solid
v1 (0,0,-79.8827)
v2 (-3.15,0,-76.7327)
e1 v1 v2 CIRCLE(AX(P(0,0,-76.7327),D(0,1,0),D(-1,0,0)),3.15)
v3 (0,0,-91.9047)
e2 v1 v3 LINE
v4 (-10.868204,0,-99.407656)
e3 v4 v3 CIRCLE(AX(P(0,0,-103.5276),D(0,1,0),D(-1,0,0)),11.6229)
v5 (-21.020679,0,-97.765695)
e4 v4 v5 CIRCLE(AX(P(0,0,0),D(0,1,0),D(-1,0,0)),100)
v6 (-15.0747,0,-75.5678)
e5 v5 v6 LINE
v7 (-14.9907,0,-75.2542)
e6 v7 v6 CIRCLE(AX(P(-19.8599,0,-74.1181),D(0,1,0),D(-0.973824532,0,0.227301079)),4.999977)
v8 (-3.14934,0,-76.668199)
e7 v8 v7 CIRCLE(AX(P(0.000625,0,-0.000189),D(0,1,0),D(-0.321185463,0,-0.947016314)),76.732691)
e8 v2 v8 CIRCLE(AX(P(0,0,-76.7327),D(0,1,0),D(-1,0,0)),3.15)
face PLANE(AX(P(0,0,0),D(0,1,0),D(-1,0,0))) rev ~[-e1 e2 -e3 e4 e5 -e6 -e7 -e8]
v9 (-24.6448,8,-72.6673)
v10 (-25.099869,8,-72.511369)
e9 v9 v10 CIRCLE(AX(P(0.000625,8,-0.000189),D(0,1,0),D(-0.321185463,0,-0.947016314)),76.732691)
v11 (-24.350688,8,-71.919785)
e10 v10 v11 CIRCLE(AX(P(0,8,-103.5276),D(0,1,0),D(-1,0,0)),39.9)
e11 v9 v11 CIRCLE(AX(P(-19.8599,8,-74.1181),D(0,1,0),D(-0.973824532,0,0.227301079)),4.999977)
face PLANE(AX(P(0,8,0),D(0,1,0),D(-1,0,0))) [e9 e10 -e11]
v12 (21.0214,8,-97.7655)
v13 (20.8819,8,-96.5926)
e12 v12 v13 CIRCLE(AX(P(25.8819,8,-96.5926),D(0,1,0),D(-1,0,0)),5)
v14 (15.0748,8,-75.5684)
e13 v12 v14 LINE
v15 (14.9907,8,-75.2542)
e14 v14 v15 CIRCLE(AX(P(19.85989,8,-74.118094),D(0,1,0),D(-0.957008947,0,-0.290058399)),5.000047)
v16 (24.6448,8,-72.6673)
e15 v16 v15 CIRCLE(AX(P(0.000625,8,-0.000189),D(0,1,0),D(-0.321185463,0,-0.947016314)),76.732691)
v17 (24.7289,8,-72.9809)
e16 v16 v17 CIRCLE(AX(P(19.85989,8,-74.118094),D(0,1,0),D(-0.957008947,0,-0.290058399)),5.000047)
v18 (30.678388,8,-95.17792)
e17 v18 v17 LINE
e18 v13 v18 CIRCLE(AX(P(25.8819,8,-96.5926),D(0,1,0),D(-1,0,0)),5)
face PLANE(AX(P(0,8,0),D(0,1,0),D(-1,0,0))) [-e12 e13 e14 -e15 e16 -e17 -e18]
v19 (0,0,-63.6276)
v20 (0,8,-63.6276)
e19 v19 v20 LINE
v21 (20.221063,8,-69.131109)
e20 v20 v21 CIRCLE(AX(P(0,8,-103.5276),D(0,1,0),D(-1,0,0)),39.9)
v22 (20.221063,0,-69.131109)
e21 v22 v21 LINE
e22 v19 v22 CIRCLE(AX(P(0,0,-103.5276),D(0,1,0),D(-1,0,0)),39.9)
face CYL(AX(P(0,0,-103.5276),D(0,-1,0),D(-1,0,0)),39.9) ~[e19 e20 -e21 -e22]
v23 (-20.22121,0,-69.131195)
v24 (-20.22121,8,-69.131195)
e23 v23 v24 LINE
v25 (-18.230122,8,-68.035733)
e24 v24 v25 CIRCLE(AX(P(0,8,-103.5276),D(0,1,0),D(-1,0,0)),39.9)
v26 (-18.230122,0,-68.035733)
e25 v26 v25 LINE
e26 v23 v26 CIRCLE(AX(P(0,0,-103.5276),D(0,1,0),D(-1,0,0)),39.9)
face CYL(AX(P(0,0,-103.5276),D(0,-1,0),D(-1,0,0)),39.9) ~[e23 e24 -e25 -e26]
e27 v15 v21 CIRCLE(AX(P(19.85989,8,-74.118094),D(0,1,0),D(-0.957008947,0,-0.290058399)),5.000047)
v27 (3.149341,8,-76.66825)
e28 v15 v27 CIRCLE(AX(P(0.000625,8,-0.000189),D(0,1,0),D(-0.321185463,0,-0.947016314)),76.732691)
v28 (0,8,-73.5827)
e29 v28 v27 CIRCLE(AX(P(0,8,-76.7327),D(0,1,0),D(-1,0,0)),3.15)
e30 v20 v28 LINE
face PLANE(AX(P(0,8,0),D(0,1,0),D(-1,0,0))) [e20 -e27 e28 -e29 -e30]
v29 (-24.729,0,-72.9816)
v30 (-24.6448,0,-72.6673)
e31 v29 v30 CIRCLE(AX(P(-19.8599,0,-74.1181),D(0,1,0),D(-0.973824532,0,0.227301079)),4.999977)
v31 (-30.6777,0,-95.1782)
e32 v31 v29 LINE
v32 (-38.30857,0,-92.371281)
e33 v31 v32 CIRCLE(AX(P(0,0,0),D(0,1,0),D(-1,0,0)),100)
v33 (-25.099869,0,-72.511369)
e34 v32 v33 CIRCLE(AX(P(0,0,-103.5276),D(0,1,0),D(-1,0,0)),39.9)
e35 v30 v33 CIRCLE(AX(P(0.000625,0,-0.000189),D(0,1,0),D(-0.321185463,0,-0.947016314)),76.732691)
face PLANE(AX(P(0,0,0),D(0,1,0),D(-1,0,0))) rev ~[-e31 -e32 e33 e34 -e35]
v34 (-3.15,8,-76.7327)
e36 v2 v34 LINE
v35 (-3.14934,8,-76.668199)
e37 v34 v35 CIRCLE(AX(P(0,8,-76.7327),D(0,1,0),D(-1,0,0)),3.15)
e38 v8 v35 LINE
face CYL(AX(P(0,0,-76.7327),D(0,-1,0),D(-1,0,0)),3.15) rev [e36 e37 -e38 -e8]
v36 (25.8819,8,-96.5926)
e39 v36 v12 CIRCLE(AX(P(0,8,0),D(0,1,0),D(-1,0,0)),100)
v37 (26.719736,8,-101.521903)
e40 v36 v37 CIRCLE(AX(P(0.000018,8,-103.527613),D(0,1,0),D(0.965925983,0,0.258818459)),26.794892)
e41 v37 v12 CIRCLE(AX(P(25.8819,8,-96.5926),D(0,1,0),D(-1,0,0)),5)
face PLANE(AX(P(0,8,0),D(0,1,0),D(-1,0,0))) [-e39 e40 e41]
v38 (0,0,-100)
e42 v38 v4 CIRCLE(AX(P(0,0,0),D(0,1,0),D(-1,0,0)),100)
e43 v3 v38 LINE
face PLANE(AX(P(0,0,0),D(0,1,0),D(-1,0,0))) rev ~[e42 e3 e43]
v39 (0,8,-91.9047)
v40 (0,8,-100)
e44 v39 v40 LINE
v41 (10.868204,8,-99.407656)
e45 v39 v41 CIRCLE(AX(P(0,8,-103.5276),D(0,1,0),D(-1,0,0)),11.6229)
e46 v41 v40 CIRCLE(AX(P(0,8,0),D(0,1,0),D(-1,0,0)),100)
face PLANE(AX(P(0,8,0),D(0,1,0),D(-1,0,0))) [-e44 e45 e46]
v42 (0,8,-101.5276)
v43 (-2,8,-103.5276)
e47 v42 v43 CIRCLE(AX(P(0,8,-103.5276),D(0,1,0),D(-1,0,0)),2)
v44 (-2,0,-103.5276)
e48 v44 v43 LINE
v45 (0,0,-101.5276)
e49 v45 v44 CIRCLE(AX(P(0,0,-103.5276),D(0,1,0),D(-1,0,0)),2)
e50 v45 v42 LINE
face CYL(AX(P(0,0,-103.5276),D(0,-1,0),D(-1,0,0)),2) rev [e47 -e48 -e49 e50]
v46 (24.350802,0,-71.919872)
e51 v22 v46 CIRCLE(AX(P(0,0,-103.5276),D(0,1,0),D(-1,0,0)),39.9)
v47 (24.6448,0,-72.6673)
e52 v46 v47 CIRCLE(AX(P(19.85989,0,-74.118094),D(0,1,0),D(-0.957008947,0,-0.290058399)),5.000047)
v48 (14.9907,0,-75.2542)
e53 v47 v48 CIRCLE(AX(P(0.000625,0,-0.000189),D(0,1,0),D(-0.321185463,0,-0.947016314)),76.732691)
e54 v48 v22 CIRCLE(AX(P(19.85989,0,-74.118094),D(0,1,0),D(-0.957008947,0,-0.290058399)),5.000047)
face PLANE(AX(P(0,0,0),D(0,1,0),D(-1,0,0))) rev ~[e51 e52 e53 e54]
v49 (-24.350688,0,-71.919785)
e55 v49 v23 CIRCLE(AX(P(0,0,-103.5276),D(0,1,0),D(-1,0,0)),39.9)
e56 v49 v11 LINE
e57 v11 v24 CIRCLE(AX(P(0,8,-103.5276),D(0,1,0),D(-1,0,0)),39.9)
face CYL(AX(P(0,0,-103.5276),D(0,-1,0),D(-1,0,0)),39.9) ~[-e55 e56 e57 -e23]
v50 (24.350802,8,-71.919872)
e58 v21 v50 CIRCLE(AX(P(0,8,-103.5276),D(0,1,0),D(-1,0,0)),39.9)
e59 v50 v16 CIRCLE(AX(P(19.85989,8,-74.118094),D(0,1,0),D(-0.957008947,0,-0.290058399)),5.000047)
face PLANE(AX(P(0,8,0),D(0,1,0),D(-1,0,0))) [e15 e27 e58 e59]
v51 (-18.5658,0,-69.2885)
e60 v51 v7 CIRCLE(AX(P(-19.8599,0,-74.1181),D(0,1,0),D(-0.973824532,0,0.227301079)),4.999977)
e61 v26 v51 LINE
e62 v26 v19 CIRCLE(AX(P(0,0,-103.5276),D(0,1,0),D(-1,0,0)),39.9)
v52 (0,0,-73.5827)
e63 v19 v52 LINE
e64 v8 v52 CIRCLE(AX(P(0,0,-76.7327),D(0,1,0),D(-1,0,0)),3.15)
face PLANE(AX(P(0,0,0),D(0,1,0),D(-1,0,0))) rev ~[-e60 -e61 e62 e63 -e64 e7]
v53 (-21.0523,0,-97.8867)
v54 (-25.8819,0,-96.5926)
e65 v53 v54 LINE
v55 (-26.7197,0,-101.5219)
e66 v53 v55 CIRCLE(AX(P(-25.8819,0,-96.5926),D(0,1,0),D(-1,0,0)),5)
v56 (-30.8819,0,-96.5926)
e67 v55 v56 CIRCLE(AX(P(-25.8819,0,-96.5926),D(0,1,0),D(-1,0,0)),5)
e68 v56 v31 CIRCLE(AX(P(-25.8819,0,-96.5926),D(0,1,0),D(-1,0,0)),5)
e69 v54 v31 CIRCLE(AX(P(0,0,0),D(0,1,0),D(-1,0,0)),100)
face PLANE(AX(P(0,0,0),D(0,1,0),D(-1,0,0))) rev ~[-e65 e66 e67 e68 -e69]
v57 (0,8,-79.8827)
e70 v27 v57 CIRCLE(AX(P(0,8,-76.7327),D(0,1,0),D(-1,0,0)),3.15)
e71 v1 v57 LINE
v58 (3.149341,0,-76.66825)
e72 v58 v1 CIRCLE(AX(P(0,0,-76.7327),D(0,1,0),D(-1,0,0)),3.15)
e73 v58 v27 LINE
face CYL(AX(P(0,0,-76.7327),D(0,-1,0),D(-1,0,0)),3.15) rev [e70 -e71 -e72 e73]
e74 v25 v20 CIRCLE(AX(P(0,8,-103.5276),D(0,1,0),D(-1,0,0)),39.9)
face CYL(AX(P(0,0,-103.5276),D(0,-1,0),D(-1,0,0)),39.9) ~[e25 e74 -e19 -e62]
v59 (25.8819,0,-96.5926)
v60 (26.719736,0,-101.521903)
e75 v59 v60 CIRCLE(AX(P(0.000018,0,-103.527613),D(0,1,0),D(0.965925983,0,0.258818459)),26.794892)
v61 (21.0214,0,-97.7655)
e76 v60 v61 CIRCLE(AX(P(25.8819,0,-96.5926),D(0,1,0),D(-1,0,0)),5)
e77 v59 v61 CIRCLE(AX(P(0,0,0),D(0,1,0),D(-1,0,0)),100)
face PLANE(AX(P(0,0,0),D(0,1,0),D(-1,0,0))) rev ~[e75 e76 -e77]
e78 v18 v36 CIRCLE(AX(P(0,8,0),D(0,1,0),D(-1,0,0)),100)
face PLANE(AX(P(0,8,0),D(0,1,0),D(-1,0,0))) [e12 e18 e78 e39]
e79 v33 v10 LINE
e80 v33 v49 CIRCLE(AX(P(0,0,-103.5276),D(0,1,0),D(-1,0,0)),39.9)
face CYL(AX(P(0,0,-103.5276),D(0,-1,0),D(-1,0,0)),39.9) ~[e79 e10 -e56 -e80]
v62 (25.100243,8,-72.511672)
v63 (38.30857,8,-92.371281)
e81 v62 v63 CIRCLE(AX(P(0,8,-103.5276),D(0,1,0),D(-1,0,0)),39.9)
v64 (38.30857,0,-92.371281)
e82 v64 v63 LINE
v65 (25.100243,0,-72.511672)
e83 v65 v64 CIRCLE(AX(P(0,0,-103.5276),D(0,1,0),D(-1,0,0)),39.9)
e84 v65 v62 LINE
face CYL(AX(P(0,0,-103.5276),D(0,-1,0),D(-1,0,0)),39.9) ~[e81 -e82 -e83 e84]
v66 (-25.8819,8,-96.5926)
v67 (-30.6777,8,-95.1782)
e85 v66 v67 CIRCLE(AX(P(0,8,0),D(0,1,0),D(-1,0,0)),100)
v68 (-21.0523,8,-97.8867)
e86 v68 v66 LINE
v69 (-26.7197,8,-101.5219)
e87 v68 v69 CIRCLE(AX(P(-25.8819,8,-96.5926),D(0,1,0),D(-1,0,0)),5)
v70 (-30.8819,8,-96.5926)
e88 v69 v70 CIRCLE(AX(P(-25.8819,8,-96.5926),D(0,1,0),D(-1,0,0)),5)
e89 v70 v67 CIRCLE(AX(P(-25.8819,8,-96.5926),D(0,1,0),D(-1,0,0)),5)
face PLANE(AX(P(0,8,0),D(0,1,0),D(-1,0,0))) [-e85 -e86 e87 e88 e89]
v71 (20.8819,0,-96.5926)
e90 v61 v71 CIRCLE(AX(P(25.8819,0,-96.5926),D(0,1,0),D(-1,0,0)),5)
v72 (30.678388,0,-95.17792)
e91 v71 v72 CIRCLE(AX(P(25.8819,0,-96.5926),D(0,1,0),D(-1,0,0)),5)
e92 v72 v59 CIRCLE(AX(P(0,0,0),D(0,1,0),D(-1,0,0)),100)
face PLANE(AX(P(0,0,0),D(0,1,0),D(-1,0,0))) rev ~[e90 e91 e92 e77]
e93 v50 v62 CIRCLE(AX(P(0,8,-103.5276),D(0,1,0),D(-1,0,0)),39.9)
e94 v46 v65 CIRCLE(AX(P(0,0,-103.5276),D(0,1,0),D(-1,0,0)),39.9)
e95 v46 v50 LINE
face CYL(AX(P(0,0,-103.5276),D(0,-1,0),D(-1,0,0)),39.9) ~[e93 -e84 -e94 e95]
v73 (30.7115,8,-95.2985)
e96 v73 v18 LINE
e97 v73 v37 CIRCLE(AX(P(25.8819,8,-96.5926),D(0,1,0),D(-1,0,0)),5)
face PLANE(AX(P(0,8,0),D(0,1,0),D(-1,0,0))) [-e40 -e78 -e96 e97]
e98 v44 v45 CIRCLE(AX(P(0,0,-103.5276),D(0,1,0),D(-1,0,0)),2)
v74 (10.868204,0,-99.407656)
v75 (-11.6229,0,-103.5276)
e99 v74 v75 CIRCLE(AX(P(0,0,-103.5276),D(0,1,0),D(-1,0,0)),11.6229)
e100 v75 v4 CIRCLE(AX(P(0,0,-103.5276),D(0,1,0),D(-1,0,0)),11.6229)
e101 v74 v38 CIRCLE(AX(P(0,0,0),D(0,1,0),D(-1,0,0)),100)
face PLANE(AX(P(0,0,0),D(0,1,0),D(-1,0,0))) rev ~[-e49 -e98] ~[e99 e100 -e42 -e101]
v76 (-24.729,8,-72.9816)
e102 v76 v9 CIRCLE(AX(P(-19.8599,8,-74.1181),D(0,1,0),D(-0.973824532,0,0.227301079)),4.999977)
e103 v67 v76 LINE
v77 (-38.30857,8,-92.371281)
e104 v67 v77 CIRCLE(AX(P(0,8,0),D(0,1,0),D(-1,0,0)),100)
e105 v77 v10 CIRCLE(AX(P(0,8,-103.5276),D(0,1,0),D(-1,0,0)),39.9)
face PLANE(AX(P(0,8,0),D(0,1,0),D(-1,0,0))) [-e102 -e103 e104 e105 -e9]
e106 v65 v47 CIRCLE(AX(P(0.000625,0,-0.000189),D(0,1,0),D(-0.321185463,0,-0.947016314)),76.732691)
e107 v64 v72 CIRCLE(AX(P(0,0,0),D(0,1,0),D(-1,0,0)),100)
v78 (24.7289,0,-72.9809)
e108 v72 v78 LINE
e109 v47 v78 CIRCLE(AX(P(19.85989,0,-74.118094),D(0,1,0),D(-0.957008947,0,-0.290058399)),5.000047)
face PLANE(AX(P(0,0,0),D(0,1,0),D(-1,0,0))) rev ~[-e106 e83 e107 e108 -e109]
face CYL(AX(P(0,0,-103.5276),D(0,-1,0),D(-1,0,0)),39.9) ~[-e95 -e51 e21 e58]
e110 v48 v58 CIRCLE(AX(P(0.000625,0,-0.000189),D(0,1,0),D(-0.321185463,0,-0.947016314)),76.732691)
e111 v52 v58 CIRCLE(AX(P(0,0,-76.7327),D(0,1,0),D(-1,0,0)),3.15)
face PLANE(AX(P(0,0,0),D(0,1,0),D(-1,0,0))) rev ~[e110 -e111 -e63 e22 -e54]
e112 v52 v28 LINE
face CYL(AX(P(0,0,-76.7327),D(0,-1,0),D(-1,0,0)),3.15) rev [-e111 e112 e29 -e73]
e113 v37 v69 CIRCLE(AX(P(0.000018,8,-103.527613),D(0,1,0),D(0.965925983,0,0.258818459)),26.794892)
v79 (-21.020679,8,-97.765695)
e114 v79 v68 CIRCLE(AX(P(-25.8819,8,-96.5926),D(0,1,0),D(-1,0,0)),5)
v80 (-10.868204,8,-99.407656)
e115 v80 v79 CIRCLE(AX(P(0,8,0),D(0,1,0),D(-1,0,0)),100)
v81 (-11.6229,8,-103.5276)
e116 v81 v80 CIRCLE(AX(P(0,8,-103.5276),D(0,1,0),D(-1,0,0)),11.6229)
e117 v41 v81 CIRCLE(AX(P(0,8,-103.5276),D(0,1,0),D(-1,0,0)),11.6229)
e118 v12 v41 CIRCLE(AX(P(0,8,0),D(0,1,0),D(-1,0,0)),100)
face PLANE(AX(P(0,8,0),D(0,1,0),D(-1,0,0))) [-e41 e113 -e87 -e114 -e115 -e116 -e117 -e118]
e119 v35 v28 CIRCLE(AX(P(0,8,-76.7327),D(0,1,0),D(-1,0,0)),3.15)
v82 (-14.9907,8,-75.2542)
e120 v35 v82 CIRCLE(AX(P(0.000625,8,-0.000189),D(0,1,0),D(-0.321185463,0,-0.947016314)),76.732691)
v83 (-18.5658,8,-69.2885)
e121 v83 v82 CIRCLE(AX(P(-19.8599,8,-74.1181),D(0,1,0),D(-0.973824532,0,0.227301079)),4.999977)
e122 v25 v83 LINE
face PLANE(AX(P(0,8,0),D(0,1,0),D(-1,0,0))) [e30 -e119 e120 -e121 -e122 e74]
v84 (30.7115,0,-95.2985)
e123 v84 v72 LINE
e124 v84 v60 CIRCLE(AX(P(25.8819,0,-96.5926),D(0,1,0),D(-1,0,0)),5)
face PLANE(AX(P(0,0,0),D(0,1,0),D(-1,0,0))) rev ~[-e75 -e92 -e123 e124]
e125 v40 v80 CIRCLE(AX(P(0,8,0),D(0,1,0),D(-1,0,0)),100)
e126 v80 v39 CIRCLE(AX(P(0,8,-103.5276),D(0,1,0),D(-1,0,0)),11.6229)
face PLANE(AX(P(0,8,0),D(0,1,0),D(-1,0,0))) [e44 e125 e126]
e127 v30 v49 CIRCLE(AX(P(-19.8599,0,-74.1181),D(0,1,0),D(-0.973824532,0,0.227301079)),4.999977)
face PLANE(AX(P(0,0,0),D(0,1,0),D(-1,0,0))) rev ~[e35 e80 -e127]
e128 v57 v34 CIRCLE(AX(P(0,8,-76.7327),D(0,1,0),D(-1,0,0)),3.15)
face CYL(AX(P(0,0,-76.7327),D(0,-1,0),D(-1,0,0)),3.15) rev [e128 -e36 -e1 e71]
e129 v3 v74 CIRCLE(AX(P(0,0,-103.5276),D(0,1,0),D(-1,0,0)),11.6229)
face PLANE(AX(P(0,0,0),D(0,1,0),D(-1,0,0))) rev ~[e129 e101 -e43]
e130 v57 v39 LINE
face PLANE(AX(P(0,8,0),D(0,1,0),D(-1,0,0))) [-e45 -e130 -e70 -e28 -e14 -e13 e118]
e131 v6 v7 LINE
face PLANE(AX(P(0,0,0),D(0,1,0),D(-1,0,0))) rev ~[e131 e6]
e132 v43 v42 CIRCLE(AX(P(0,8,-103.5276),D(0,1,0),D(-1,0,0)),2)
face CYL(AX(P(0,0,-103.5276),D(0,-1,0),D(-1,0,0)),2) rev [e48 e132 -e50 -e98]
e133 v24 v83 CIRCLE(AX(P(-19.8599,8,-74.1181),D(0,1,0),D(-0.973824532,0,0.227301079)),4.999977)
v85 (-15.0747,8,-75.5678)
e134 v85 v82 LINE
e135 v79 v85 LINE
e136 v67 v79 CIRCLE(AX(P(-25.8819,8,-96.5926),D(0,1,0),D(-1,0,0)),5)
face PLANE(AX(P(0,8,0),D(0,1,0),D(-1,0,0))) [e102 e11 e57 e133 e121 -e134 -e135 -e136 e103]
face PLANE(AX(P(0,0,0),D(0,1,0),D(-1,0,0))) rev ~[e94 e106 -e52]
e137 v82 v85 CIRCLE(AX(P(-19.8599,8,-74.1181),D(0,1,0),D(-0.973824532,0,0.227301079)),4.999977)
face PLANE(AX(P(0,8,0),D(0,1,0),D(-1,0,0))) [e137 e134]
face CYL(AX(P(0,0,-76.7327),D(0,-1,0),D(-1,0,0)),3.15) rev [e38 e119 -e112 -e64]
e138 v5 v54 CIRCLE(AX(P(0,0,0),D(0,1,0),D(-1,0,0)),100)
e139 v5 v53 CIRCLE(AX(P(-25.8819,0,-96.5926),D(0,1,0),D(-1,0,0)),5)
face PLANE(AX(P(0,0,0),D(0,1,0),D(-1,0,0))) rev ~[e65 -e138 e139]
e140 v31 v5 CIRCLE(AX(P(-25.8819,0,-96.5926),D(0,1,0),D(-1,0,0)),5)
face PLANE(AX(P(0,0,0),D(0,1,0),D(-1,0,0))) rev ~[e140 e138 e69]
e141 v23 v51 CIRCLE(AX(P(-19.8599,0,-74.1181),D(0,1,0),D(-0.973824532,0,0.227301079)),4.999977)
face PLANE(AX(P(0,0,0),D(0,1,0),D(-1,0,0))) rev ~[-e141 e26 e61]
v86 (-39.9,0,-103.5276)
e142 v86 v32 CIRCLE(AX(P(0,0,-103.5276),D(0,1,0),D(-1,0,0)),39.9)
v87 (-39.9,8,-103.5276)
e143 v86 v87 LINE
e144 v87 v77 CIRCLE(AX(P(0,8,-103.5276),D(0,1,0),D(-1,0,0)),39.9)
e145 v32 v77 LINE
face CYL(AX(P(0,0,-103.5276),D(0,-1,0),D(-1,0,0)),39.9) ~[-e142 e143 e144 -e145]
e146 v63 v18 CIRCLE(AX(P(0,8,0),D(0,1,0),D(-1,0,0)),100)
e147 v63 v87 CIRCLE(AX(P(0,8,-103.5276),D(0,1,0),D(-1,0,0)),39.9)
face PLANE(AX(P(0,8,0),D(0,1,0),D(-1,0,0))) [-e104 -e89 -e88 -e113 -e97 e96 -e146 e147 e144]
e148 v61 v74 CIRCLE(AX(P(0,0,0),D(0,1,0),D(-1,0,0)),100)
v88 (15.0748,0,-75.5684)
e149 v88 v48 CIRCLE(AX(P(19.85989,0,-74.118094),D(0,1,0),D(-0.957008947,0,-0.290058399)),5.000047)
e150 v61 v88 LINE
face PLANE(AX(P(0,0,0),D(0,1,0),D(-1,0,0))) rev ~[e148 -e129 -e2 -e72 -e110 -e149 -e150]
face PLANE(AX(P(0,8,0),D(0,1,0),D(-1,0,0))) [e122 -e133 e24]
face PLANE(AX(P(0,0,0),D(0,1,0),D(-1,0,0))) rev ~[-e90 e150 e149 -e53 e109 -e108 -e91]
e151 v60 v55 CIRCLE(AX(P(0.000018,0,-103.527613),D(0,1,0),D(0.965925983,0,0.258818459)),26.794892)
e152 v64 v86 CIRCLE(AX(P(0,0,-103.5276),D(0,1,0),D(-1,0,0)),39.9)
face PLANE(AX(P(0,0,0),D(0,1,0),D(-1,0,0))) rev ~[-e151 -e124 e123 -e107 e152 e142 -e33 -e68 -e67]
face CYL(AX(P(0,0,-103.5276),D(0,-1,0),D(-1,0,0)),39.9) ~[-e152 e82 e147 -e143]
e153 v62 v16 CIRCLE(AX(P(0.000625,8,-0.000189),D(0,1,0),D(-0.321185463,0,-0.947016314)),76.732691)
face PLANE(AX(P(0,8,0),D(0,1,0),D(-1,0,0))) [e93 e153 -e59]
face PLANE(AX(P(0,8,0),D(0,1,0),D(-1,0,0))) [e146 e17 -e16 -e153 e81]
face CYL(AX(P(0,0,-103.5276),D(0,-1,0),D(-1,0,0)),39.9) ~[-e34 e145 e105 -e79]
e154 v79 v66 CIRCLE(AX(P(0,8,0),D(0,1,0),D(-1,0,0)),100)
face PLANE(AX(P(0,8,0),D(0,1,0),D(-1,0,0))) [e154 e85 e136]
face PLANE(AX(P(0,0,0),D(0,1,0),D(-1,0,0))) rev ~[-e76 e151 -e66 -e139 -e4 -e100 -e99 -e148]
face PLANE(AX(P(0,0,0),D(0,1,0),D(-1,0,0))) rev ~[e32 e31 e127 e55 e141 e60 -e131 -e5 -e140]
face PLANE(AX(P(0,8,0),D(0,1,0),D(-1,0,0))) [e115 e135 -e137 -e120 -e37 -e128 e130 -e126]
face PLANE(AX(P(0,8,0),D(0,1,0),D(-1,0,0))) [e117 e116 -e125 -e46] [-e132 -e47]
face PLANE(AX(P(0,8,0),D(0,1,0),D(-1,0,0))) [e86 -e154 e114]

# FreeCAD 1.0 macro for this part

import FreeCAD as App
import Part
import Sketcher

doc = App.newDocument("Part")
params = doc.addObject("Spreadsheet::Sheet", "Params")
for row, (alias, value) in enumerate([
    ("sketch1_diameter", "4 mm"),
    ("sketch1_diameter2", "79.8 mm"),
    ("sketch1_diameter3", "6.3 mm"),
    ("pad1_length", "8 mm"),
], start=1):
    params.set(f"A{row}", alias)
    params.set(f"B{row}", "=" + value)
    params.setAlias(f"B{row}", alias)

body = doc.addObject("PartDesign::Body", "Body")

# Sketch on XZ plane
sketch1 = doc.addObject("Sketcher::SketchObject", "Sketch")
body.addObject(sketch1)
sketch1.AttachmentSupport = (doc.XZ_Plane, [""])
sketch1.MapMode = "FlatFace"
sketch1.addGeometry(Part.Circle(App.Vector(0, -103.5, 0), App.Vector(0, 0, 1), 39.9), False)
sketch1.addGeometry(Part.Circle(App.Vector(0, -76.7, 0), App.Vector(0, 0, 1), 3.1), False)
sketch1.addGeometry(Part.Circle(App.Vector(0, -103.5, 0), App.Vector(0, 0, 1), 2), False)
sketch1.addConstraint(Sketcher.Constraint("Coincident", 2, 3, 0, 3))
sketch1.addConstraint(Sketcher.Constraint("PointOnObject", 0, 3, -2))
sketch1.addConstraint(Sketcher.Constraint("PointOnObject", 1, 3, -2))
sketch1.addConstraint(Sketcher.Constraint("Diameter", 2, 4.0))
sketch1.addConstraint(Sketcher.Constraint("Diameter", 0, 79.8))
sketch1.addConstraint(Sketcher.Constraint("Diameter", 1, 6.3))
sketch1.addConstraint(Sketcher.Constraint("DistanceY", 0, 3, 1, 3, 26.795))
sketch1.addConstraint(Sketcher.Constraint("DistanceY", 0, 3, -1, 1, 103.5276))
sketch1.setExpression("Constraints[3]", "Params.sketch1_diameter")
sketch1.setExpression("Constraints[4]", "Params.sketch1_diameter2")
sketch1.setExpression("Constraints[5]", "Params.sketch1_diameter3")
pad1 = doc.addObject("PartDesign::Pad", "Pad")
body.addObject(pad1)
pad1.Profile = sketch1
pad1.setExpression("Length", "Params.pad1_length")
pad1.Reversed = True

doc.recompute()
